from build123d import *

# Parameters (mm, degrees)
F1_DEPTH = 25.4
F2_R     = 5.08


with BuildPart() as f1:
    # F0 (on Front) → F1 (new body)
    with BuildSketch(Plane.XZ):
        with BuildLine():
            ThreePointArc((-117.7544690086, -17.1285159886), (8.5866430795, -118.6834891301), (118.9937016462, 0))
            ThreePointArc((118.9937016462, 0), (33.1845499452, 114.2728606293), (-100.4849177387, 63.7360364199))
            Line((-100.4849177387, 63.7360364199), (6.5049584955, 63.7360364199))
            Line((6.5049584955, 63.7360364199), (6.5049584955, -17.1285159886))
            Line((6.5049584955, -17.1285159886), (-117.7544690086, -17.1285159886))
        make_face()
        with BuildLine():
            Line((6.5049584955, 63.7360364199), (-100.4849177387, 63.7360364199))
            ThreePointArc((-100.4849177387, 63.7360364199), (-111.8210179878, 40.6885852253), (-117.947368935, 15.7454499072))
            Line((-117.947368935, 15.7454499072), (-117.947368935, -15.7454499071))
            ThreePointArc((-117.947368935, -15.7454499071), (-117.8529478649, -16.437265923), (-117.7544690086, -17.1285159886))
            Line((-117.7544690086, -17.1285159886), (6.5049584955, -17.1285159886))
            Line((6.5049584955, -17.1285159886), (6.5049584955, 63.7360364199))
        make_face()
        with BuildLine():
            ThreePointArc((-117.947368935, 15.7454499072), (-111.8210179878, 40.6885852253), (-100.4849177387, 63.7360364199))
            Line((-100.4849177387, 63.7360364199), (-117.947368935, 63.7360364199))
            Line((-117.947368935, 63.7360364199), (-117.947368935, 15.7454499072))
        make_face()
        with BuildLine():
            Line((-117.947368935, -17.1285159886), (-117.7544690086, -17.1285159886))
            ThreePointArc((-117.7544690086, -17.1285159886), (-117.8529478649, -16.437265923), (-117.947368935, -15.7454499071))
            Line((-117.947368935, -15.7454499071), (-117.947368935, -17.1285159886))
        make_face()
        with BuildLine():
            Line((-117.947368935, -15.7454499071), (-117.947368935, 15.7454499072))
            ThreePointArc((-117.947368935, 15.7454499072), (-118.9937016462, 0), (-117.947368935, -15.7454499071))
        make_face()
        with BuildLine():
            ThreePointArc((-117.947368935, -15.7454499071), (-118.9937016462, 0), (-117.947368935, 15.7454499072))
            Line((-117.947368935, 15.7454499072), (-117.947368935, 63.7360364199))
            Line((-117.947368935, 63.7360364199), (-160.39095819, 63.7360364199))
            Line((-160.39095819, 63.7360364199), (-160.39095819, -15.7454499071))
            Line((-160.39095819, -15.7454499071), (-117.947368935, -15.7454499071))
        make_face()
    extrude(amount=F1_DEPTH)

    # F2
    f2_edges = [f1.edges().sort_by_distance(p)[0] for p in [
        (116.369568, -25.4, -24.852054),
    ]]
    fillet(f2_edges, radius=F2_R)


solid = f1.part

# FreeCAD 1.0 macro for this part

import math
import FreeCAD as App
import Part
import Sketcher
from FreeCAD import Vector
Q = App.Units.Quantity


def edges_at(feature, points):
    """Names of the edges that pass closest to the given points."""
    edges = feature.Shape.Edges
    near = lambda p: min(range(len(edges)), key=lambda i: edges[i].distToShape(Part.Vertex(*p))[0])
    return sorted({f"Edge{near(p) + 1}" for p in points})

doc = App.newDocument("Part")
body = doc.addObject("PartDesign::Body", "Body")

sketch1 = body.newObject("Sketcher::SketchObject", "Sketch")
sketch1.AttachmentSupport = (doc.getObject("XZ_Plane"), [""])
sketch1.MapMode = "FlatFace"
sketch1.addGeometry([
    Part.ArcOfCircle(Part.Circle(Vector(0, 0, 0), Vector(0, 0, 1), 118.993702), math.radians(-171.723825), math.radians(147.613673)),
    Part.LineSegment(Vector(-100.484918, 63.736036, 0), Vector(-160.390958, 63.736036, 0)),
    Part.LineSegment(Vector(-160.390958, 63.736036, 0), Vector(-160.390958, -15.74545, 0)),
    Part.LineSegment(Vector(-160.390958, -15.74545, 0), Vector(-117.947369, -15.74545, 0)),
    Part.LineSegment(Vector(-117.947369, -15.74545, 0), Vector(-117.947369, -17.128516, 0)),
    Part.LineSegment(Vector(-117.947369, -17.128516, 0), Vector(-117.754469, -17.128516, 0)),
], False)
sketch1.addConstraint([
    Sketcher.Constraint("Coincident", 0, 2, 1, 1),
    Sketcher.Constraint("Coincident", 1, 2, 2, 1),
    Sketcher.Constraint("Coincident", 2, 2, 3, 1),
    Sketcher.Constraint("Coincident", 3, 2, 4, 1),
    Sketcher.Constraint("Coincident", 4, 2, 5, 1),
    Sketcher.Constraint("Coincident", 5, 2, 0, 1),
    Sketcher.Constraint("Horizontal", 1),
    Sketcher.Constraint("Vertical", 2),
    Sketcher.Constraint("Horizontal", 3),
    Sketcher.Constraint("Vertical", 4),
    Sketcher.Constraint("Horizontal", 5),
    Sketcher.Constraint("Coincident", 0, 3, -1, 1),
    Sketcher.Constraint("Radius", 0, 118.993702),
    Sketcher.Constraint("DistanceX", 5, 1, 5, 2, 0.1929),
    Sketcher.Constraint("DistanceX", 1, 2, 1, 1, 59.90604),
    Sketcher.Constraint("DistanceX", 3, 1, 3, 2, 42.443589),
    Sketcher.Constraint("DistanceY", 2, 2, 2, 1, 79.481486),
    Sketcher.Constraint("DistanceY", 4, 2, 4, 1, 1.383066),
])
pad1 = body.newObject("PartDesign::Pad", "Pad")
pad1.Profile = sketch1
pad1.Length = Q("1 in")
doc.recompute()

fillet = body.newObject("PartDesign::Fillet", "Fillet")
fillet.Base = (pad1, edges_at(pad1, [(116.37, -25.4, -24.852)]))
fillet.Radius = Q("0.2 in")

doc.recompute()
